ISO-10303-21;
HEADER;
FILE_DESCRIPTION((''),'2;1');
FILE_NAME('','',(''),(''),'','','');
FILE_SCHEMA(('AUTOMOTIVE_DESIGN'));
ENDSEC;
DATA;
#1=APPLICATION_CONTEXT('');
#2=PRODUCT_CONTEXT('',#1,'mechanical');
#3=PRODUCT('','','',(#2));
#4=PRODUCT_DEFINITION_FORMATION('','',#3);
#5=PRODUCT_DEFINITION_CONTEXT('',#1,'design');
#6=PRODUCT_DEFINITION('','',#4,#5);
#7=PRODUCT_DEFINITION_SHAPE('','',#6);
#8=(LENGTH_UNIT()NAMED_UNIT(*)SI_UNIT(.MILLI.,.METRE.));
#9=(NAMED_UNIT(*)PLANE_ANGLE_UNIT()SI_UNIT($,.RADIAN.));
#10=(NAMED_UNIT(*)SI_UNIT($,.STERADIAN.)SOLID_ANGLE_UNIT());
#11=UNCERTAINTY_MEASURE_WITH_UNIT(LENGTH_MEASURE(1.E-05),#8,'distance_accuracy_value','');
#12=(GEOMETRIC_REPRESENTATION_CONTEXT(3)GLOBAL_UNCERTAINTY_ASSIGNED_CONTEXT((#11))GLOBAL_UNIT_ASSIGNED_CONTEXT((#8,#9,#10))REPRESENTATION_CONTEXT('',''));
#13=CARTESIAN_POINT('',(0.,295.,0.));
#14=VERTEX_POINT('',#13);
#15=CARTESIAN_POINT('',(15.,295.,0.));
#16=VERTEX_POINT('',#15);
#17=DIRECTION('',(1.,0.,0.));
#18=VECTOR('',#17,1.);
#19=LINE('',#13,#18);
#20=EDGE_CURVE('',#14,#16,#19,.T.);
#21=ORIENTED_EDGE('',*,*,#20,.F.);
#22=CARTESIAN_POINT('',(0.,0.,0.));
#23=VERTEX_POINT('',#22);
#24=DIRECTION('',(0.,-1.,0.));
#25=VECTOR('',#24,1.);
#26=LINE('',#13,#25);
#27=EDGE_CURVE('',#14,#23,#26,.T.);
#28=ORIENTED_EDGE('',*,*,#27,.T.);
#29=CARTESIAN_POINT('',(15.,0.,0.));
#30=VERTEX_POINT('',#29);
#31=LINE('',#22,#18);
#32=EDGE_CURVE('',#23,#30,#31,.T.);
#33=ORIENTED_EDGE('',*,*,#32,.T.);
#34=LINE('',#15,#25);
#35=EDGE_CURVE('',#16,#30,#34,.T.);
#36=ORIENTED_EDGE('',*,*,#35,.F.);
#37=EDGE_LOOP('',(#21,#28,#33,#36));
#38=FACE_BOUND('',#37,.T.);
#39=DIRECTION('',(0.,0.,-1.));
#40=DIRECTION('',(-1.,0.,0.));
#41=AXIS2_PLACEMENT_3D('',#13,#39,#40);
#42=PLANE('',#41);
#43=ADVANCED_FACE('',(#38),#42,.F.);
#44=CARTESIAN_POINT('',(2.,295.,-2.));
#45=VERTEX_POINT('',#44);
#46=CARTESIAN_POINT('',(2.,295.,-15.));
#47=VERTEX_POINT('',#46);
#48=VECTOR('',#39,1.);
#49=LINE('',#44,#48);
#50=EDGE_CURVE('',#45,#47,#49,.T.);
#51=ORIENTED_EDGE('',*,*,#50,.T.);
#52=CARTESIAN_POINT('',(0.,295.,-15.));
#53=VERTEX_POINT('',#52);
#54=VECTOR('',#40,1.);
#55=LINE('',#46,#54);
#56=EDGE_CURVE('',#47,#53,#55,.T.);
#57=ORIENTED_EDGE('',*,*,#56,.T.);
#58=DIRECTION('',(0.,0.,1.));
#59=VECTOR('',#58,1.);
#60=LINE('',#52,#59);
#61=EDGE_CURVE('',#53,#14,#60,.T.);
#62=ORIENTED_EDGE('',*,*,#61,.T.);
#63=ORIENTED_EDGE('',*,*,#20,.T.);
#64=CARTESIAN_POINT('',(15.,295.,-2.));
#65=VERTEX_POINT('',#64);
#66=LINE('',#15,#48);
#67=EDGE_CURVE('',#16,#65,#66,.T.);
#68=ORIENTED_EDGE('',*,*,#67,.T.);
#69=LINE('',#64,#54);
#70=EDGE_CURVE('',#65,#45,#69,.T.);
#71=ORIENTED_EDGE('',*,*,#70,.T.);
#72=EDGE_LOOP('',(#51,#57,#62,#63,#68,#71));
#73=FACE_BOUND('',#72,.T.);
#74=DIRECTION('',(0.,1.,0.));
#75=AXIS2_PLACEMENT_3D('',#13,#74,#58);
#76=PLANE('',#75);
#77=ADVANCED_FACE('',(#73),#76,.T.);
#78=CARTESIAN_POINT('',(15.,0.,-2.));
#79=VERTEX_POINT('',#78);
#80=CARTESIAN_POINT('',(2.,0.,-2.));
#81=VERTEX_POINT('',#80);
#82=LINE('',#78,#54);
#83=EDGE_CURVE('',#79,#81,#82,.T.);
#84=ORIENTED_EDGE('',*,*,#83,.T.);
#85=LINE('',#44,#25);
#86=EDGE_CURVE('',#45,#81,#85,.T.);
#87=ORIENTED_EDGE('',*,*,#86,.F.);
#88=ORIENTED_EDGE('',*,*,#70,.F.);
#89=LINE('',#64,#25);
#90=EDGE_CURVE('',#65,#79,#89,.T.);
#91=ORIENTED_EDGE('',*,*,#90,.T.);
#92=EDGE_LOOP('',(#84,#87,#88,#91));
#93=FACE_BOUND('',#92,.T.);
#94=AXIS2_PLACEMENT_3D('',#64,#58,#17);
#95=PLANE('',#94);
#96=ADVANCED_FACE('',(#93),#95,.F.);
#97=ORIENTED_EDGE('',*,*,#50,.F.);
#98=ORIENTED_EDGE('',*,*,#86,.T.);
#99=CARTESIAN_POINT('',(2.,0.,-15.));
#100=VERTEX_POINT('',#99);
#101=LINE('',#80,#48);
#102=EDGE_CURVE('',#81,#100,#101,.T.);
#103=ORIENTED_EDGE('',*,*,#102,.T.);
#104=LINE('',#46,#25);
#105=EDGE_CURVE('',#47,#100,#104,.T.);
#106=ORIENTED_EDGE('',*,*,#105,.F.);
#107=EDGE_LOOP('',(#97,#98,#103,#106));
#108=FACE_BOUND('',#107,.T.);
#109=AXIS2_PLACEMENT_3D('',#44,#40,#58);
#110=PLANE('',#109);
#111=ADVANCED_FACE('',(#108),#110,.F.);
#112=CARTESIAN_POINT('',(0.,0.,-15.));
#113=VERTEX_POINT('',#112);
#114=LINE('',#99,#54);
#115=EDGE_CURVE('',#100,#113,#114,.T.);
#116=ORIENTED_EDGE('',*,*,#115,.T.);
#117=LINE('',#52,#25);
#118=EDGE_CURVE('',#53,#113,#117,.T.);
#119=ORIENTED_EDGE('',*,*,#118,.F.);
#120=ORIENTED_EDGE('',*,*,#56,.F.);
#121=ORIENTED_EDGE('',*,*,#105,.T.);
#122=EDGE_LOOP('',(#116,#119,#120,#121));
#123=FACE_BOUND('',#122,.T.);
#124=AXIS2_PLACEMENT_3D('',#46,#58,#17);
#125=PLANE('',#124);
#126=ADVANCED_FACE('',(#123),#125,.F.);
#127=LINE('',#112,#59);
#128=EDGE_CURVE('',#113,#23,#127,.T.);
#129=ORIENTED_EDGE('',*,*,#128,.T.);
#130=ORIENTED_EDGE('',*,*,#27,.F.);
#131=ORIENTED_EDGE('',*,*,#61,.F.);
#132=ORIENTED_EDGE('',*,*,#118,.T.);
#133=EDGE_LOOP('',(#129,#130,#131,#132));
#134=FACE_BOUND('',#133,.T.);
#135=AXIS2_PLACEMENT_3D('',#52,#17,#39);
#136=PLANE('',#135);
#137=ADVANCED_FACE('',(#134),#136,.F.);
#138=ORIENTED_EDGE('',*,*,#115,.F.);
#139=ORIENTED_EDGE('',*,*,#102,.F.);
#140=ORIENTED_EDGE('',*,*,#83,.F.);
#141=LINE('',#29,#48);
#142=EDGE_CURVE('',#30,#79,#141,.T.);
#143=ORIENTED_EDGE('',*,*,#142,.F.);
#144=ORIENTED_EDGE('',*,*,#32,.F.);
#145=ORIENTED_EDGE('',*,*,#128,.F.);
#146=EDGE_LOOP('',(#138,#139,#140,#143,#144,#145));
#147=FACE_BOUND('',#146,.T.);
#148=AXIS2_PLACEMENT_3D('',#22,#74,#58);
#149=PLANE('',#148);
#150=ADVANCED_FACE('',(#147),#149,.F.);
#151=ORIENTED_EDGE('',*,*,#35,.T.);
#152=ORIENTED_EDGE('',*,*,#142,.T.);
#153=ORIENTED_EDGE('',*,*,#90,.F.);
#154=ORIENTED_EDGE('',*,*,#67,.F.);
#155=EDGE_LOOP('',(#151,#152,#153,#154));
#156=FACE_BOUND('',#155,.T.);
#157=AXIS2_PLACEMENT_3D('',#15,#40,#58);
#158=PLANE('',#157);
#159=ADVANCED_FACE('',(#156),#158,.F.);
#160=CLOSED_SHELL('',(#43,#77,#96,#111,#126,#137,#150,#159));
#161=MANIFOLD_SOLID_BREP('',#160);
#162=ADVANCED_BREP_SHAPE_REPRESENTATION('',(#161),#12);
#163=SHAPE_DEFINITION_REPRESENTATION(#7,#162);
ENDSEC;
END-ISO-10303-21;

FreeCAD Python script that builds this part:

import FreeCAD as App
import Part
import Sketcher
Q = App.Units.Quantity

doc = App.newDocument("Part")
params = doc.addObject("Spreadsheet::Sheet", "Params")
for row, (alias, value) in enumerate([
    ("sketch1_width", "15 mm"),
    ("sketch1_width2", "13 mm"),
    ("pad1_length", "295 mm"),
], start=1):
    params.set(f"A{row}", alias)
    params.set(f"B{row}", "=" + value)
    params.setAlias(f"B{row}", alias)

body = doc.addObject("PartDesign::Body", "Body")

# Sketch on XZ plane
sketch1 = doc.addObject("Sketcher::SketchObject", "Sketch")
body.addObject(sketch1)
sketch1.AttachmentSupport = (doc.XZ_Plane, [""])
sketch1.MapMode = "FlatFace"
sketch1.addGeometry([
    Part.LineSegment(App.Vector(0, 0, 0), App.Vector(15, 0, 0)),  # 0
    Part.LineSegment(App.Vector(15, 0, 0), App.Vector(15, -2, 0)),  # 1
    Part.LineSegment(App.Vector(15, -2, 0), App.Vector(2, -2, 0)),  # 2
    Part.LineSegment(App.Vector(2, -2, 0), App.Vector(2, -15, 0)),  # 3
    Part.LineSegment(App.Vector(2, -15, 0), App.Vector(0, -15, 0)),  # 4
    Part.LineSegment(App.Vector(0, -15, 0), App.Vector(0, 0, 0)),  # 5
], False)
sketch1.addConstraint([
    Sketcher.Constraint("Coincident", 0, 2, 1, 1),
    Sketcher.Constraint("Coincident", 1, 2, 2, 1),
    Sketcher.Constraint("Coincident", 2, 2, 3, 1),
    Sketcher.Constraint("Coincident", 3, 2, 4, 1),
    Sketcher.Constraint("Coincident", 4, 2, 5, 1),
    Sketcher.Constraint("Coincident", 5, 2, 0, 1),
    Sketcher.Constraint("Horizontal", 0),
    Sketcher.Constraint("Vertical", 1),
    Sketcher.Constraint("Horizontal", 2),
    Sketcher.Constraint("Vertical", 3),
    Sketcher.Constraint("Horizontal", 4),
    Sketcher.Constraint("Vertical", 5),
    Sketcher.Constraint("Coincident", 5, 2, -1, 1),
    Sketcher.Constraint("Equal", 4, 1),
    Sketcher.Constraint("Equal", 2, 3),
    Sketcher.Constraint("DistanceX", 0, 1, 0, 2, Q("15 mm")),
    Sketcher.Constraint("DistanceX", 2, 2, 2, 1, Q("13 mm")),
])
sketch1.setExpression("Constraints[15]", "Params.sketch1_width")
sketch1.setExpression("Constraints[16]", "Params.sketch1_width2")
pad1 = doc.addObject("PartDesign::Pad", "Pad")
body.addObject(pad1)
pad1.Profile = sketch1
pad1.setExpression("Length", "Params.pad1_length")
pad1.Reversed = True

doc.recompute()
